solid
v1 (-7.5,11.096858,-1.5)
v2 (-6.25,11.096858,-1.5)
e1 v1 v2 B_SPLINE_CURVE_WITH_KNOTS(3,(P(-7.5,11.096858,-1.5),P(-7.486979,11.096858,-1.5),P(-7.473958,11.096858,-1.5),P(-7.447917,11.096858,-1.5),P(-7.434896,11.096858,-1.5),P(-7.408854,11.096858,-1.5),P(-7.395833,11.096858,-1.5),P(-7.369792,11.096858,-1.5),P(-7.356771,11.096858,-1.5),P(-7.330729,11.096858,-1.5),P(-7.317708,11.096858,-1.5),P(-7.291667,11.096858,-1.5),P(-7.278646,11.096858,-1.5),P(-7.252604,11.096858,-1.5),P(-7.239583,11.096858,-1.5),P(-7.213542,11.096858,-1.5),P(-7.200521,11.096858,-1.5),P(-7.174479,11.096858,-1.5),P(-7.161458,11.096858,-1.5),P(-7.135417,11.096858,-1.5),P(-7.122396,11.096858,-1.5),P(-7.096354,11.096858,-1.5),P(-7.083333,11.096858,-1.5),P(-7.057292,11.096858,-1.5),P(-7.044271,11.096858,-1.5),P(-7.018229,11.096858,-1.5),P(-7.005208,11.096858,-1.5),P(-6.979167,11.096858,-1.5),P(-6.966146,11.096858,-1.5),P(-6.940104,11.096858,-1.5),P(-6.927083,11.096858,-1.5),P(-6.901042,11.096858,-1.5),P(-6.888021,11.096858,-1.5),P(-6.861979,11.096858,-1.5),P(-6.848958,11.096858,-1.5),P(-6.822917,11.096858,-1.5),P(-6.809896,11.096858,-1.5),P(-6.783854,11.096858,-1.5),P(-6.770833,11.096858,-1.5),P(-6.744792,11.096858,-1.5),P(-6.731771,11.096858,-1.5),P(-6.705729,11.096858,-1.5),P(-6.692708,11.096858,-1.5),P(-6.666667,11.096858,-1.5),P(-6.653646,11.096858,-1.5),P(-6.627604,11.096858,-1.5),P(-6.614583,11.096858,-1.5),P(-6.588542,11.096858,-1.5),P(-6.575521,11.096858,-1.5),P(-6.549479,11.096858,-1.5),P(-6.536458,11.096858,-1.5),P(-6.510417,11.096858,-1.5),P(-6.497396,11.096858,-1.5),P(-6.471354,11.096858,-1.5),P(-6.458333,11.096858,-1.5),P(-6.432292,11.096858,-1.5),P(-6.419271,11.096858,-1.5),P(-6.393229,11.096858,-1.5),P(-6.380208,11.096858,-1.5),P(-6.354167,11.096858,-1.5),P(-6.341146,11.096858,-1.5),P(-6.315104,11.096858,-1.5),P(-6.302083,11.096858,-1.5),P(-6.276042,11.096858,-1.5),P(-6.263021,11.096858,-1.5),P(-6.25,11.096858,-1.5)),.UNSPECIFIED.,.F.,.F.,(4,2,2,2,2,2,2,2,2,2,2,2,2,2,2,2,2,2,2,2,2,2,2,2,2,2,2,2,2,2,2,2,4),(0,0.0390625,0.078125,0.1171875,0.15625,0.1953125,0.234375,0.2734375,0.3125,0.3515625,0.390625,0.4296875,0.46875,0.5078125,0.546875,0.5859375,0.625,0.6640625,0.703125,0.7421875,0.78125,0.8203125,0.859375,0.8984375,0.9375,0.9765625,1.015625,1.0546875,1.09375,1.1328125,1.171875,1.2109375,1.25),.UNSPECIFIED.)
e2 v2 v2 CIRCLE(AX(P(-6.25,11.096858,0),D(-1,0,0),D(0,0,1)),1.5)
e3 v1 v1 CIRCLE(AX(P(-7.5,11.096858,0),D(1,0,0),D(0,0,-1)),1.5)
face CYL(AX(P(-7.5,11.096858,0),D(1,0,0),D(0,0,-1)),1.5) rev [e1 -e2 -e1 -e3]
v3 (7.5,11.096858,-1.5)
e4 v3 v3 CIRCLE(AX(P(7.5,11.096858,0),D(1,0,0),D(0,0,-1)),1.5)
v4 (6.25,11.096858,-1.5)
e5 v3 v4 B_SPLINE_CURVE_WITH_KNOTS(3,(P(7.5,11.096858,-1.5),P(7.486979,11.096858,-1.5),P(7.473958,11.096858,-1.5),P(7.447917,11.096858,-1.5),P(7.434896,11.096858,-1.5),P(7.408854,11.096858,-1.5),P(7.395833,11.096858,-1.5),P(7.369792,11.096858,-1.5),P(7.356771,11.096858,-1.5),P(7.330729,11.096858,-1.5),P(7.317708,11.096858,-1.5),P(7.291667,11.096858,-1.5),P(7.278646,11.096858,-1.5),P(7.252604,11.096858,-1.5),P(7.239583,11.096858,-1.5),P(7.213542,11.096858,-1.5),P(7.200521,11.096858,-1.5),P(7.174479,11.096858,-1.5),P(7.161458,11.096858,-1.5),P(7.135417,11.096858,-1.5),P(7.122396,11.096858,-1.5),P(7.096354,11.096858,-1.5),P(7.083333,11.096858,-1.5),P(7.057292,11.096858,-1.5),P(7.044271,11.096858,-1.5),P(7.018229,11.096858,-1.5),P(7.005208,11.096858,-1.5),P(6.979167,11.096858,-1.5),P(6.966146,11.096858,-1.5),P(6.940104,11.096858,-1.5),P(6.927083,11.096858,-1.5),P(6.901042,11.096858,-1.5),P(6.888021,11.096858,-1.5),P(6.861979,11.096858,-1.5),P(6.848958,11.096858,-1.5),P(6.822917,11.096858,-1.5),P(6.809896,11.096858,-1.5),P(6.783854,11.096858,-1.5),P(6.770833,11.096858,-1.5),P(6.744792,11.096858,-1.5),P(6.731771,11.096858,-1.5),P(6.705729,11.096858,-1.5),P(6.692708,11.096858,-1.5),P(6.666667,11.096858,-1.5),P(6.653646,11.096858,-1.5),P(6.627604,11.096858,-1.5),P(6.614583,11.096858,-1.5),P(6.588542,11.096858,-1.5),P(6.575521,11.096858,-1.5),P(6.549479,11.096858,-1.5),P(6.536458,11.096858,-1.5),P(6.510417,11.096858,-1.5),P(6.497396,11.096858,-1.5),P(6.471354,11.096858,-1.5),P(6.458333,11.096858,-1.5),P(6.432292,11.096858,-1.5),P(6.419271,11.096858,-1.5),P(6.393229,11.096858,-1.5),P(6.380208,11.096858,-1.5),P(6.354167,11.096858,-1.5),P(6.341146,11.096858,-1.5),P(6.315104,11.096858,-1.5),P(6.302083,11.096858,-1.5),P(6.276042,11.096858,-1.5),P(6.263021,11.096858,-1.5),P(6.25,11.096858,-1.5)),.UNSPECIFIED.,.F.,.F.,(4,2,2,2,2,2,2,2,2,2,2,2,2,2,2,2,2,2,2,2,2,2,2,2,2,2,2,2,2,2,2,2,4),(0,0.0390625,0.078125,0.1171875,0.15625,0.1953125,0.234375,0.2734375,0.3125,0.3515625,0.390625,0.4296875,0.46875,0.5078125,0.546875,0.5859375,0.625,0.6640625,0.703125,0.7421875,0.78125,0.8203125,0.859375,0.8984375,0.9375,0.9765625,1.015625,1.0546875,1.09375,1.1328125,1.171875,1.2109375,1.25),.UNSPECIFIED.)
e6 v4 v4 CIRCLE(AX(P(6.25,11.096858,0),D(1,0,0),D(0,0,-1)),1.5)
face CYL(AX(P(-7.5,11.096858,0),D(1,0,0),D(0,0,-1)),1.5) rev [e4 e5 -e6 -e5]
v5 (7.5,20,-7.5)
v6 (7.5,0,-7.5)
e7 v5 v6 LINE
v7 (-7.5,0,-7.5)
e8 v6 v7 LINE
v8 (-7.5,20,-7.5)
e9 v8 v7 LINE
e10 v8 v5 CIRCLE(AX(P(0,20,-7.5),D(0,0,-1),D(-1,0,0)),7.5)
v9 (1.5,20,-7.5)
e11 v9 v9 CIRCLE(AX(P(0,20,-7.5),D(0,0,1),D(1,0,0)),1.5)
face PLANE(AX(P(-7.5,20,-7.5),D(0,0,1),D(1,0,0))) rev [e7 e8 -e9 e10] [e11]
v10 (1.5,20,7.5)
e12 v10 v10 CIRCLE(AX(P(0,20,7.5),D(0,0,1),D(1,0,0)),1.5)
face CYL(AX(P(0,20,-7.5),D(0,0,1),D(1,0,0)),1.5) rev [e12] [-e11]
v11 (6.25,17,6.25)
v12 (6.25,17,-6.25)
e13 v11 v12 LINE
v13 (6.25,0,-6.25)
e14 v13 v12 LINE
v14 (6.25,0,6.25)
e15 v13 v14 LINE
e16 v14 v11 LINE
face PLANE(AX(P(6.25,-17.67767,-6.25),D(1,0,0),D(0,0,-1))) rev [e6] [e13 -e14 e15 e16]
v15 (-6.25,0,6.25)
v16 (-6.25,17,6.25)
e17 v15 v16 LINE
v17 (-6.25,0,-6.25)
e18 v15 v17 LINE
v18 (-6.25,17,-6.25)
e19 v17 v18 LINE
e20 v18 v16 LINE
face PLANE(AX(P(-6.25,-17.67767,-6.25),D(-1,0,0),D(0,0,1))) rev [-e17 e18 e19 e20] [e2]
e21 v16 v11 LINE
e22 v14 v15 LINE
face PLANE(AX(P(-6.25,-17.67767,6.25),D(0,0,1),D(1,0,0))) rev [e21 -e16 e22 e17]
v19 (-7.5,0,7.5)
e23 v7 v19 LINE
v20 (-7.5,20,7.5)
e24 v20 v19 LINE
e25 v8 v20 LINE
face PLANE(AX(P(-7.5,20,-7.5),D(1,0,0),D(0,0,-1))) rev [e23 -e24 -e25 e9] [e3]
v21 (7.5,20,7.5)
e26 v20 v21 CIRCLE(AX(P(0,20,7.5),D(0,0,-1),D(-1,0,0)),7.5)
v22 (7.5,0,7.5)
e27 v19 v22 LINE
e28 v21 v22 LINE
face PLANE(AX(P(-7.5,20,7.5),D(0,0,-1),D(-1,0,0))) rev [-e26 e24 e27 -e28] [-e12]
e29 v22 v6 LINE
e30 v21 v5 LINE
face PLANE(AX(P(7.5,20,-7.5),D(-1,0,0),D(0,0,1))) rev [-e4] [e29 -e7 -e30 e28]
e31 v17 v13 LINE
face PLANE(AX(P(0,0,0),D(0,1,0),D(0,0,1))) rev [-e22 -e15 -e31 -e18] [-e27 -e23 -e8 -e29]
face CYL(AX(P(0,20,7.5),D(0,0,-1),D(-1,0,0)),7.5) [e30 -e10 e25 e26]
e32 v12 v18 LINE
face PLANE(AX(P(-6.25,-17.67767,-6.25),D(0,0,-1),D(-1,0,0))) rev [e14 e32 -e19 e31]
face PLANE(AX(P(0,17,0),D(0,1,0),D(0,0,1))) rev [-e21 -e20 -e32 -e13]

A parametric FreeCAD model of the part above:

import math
import FreeCAD as App
import Part
import Sketcher
from FreeCAD import Vector


def add_polygon(sketch, points):
    """Adds a closed chain of lines whose ends are joined by coincident constraints."""
    first, n = sketch.GeometryCount, len(points)
    for a, b in zip(points, points[1:] + points[:1]):
        sketch.addGeometry(Part.LineSegment(App.Vector(*a, 0), App.Vector(*b, 0)), False)
    for i in range(n):
        sketch.addConstraint(Sketcher.Constraint("Coincident", first + i, 2, first + (i + 1) % n, 1))

doc = App.newDocument("Part")
body = doc.addObject("PartDesign::Body", "Body")

sketch1 = body.newObject("Sketcher::SketchObject", "Sketch")
sketch1.AttachmentSupport = (doc.getObject("XZ_Plane"), [""])
sketch1.MapMode = "FlatFace"
add_polygon(sketch1, [(-8, -8), (-8, 8), (8, 8), (8, -8)])
sketch1.addConstraint([
    Sketcher.Constraint("Vertical", 0),
    Sketcher.Constraint("Horizontal", 1),
    Sketcher.Constraint("Vertical", 2),
    Sketcher.Constraint("Horizontal", 3),
    Sketcher.Constraint("Symmetric", 0, 2, 2, 2, -1, 1),
    Sketcher.Constraint("Equal", 3, 0),
    Sketcher.Constraint("DistanceX", 1, 1, 1, 2, 15.0),
])
pad1 = body.newObject("PartDesign::Pad", "Pad")
pad1.Profile = sketch1
pad1.Length = 20
pad1.Reversed = True

sketch2 = body.newObject("Sketcher::SketchObject", "Sketch001")
sketch2.AttachmentSupport = (doc.getObject("XZ_Plane"), [""])
sketch2.MapMode = "FlatFace"
sketch2.AttachmentOffset = App.Placement(Vector(0, 0, -17), App.Rotation())
add_polygon(sketch2, [(-6, -6), (-6, 6), (6, 6), (6, -6)])
sketch2.addConstraint([
    Sketcher.Constraint("Vertical", 0),
    Sketcher.Constraint("Horizontal", 1),
    Sketcher.Constraint("Vertical", 2),
    Sketcher.Constraint("Horizontal", 3),
    Sketcher.Constraint("Symmetric", 0, 2, 2, 2, -1, 1),
    Sketcher.Constraint("Equal", 3, 0),
    Sketcher.Constraint("DistanceX", 1, 1, 1, 2, 12.5),
])
pocket1 = body.newObject("PartDesign::Pocket", "Pocket")
pocket1.Profile = sketch2
pocket1.Length = 17
pocket1.Reversed = True

sketch3 = body.newObject("Sketcher::SketchObject", "Sketch002")
sketch3.AttachmentSupport = (doc.getObject("XY_Plane"), [""])
sketch3.MapMode = "FlatFace"
sketch3.AttachmentOffset = App.Placement(Vector(0, 0, -7.5), App.Rotation())
sketch3.addGeometry([
    Part.LineSegment(Vector(8, 20, 0), Vector(-8, 20, 0)),
    Part.ArcOfCircle(Part.Circle(Vector(0, 20, 0), Vector(0, 0, 1), 8), math.radians(0), math.radians(180)),
], False)
sketch3.addConstraint([
    Sketcher.Constraint("Coincident", 0, 1, 1, 1),
    Sketcher.Constraint("Coincident", 1, 2, 0, 2),
    Sketcher.Constraint("Horizontal", 0),
    Sketcher.Constraint("PointOnObject", 1, 3, -2),
    Sketcher.Constraint("Horizontal", 1, 3, 0, 1),
    Sketcher.Constraint("Radius", 1, 7.5),
    Sketcher.Constraint("DistanceY", -1, 1, 1, 3, 20.0),
])
pad2 = body.newObject("PartDesign::Pad", "Pad001")
pad2.Profile = sketch3
pad2.Length = 15

sketch4 = body.newObject("Sketcher::SketchObject", "Sketch003")
sketch4.AttachmentSupport = (doc.getObject("YZ_Plane"), [""])
sketch4.MapMode = "FlatFace"
sketch4.AttachmentOffset = App.Placement(Vector(0, 0, 7.5), App.Rotation())
sketch4.addGeometry(Part.Circle(Vector(11.1, 0, 0), Vector(0, 0, 1), 1.5), False)
sketch4.addConstraint([
    Sketcher.Constraint("PointOnObject", 0, 3, -1),
    Sketcher.Constraint("Diameter", 0, 3.0),
    Sketcher.Constraint("DistanceX", -1, 1, 0, 3, 11.096858),
])
pocket2 = body.newObject("PartDesign::Pocket", "Pocket001")
pocket2.Profile = sketch4
pocket2.Type = "ThroughAll"

sketch5 = body.newObject("Sketcher::SketchObject", "Sketch004")
sketch5.AttachmentSupport = (doc.getObject("XY_Plane"), [""])
sketch5.MapMode = "FlatFace"
sketch5.AttachmentOffset = App.Placement(Vector(0, 0, 7.5), App.Rotation())
sketch5.addGeometry(Part.Circle(Vector(0, 20, 0), Vector(0, 0, 1), 1.5), False)
sketch5.addConstraint([
    Sketcher.Constraint("PointOnObject", 0, 3, -2),
    Sketcher.Constraint("Diameter", 0, 3.0),
    Sketcher.Constraint("DistanceY", -1, 1, 0, 3, 20.0),
])
pocket3 = body.newObject("PartDesign::Pocket", "Pocket002")
pocket3.Profile = sketch5
pocket3.Type = "ThroughAll"

doc.recompute()
